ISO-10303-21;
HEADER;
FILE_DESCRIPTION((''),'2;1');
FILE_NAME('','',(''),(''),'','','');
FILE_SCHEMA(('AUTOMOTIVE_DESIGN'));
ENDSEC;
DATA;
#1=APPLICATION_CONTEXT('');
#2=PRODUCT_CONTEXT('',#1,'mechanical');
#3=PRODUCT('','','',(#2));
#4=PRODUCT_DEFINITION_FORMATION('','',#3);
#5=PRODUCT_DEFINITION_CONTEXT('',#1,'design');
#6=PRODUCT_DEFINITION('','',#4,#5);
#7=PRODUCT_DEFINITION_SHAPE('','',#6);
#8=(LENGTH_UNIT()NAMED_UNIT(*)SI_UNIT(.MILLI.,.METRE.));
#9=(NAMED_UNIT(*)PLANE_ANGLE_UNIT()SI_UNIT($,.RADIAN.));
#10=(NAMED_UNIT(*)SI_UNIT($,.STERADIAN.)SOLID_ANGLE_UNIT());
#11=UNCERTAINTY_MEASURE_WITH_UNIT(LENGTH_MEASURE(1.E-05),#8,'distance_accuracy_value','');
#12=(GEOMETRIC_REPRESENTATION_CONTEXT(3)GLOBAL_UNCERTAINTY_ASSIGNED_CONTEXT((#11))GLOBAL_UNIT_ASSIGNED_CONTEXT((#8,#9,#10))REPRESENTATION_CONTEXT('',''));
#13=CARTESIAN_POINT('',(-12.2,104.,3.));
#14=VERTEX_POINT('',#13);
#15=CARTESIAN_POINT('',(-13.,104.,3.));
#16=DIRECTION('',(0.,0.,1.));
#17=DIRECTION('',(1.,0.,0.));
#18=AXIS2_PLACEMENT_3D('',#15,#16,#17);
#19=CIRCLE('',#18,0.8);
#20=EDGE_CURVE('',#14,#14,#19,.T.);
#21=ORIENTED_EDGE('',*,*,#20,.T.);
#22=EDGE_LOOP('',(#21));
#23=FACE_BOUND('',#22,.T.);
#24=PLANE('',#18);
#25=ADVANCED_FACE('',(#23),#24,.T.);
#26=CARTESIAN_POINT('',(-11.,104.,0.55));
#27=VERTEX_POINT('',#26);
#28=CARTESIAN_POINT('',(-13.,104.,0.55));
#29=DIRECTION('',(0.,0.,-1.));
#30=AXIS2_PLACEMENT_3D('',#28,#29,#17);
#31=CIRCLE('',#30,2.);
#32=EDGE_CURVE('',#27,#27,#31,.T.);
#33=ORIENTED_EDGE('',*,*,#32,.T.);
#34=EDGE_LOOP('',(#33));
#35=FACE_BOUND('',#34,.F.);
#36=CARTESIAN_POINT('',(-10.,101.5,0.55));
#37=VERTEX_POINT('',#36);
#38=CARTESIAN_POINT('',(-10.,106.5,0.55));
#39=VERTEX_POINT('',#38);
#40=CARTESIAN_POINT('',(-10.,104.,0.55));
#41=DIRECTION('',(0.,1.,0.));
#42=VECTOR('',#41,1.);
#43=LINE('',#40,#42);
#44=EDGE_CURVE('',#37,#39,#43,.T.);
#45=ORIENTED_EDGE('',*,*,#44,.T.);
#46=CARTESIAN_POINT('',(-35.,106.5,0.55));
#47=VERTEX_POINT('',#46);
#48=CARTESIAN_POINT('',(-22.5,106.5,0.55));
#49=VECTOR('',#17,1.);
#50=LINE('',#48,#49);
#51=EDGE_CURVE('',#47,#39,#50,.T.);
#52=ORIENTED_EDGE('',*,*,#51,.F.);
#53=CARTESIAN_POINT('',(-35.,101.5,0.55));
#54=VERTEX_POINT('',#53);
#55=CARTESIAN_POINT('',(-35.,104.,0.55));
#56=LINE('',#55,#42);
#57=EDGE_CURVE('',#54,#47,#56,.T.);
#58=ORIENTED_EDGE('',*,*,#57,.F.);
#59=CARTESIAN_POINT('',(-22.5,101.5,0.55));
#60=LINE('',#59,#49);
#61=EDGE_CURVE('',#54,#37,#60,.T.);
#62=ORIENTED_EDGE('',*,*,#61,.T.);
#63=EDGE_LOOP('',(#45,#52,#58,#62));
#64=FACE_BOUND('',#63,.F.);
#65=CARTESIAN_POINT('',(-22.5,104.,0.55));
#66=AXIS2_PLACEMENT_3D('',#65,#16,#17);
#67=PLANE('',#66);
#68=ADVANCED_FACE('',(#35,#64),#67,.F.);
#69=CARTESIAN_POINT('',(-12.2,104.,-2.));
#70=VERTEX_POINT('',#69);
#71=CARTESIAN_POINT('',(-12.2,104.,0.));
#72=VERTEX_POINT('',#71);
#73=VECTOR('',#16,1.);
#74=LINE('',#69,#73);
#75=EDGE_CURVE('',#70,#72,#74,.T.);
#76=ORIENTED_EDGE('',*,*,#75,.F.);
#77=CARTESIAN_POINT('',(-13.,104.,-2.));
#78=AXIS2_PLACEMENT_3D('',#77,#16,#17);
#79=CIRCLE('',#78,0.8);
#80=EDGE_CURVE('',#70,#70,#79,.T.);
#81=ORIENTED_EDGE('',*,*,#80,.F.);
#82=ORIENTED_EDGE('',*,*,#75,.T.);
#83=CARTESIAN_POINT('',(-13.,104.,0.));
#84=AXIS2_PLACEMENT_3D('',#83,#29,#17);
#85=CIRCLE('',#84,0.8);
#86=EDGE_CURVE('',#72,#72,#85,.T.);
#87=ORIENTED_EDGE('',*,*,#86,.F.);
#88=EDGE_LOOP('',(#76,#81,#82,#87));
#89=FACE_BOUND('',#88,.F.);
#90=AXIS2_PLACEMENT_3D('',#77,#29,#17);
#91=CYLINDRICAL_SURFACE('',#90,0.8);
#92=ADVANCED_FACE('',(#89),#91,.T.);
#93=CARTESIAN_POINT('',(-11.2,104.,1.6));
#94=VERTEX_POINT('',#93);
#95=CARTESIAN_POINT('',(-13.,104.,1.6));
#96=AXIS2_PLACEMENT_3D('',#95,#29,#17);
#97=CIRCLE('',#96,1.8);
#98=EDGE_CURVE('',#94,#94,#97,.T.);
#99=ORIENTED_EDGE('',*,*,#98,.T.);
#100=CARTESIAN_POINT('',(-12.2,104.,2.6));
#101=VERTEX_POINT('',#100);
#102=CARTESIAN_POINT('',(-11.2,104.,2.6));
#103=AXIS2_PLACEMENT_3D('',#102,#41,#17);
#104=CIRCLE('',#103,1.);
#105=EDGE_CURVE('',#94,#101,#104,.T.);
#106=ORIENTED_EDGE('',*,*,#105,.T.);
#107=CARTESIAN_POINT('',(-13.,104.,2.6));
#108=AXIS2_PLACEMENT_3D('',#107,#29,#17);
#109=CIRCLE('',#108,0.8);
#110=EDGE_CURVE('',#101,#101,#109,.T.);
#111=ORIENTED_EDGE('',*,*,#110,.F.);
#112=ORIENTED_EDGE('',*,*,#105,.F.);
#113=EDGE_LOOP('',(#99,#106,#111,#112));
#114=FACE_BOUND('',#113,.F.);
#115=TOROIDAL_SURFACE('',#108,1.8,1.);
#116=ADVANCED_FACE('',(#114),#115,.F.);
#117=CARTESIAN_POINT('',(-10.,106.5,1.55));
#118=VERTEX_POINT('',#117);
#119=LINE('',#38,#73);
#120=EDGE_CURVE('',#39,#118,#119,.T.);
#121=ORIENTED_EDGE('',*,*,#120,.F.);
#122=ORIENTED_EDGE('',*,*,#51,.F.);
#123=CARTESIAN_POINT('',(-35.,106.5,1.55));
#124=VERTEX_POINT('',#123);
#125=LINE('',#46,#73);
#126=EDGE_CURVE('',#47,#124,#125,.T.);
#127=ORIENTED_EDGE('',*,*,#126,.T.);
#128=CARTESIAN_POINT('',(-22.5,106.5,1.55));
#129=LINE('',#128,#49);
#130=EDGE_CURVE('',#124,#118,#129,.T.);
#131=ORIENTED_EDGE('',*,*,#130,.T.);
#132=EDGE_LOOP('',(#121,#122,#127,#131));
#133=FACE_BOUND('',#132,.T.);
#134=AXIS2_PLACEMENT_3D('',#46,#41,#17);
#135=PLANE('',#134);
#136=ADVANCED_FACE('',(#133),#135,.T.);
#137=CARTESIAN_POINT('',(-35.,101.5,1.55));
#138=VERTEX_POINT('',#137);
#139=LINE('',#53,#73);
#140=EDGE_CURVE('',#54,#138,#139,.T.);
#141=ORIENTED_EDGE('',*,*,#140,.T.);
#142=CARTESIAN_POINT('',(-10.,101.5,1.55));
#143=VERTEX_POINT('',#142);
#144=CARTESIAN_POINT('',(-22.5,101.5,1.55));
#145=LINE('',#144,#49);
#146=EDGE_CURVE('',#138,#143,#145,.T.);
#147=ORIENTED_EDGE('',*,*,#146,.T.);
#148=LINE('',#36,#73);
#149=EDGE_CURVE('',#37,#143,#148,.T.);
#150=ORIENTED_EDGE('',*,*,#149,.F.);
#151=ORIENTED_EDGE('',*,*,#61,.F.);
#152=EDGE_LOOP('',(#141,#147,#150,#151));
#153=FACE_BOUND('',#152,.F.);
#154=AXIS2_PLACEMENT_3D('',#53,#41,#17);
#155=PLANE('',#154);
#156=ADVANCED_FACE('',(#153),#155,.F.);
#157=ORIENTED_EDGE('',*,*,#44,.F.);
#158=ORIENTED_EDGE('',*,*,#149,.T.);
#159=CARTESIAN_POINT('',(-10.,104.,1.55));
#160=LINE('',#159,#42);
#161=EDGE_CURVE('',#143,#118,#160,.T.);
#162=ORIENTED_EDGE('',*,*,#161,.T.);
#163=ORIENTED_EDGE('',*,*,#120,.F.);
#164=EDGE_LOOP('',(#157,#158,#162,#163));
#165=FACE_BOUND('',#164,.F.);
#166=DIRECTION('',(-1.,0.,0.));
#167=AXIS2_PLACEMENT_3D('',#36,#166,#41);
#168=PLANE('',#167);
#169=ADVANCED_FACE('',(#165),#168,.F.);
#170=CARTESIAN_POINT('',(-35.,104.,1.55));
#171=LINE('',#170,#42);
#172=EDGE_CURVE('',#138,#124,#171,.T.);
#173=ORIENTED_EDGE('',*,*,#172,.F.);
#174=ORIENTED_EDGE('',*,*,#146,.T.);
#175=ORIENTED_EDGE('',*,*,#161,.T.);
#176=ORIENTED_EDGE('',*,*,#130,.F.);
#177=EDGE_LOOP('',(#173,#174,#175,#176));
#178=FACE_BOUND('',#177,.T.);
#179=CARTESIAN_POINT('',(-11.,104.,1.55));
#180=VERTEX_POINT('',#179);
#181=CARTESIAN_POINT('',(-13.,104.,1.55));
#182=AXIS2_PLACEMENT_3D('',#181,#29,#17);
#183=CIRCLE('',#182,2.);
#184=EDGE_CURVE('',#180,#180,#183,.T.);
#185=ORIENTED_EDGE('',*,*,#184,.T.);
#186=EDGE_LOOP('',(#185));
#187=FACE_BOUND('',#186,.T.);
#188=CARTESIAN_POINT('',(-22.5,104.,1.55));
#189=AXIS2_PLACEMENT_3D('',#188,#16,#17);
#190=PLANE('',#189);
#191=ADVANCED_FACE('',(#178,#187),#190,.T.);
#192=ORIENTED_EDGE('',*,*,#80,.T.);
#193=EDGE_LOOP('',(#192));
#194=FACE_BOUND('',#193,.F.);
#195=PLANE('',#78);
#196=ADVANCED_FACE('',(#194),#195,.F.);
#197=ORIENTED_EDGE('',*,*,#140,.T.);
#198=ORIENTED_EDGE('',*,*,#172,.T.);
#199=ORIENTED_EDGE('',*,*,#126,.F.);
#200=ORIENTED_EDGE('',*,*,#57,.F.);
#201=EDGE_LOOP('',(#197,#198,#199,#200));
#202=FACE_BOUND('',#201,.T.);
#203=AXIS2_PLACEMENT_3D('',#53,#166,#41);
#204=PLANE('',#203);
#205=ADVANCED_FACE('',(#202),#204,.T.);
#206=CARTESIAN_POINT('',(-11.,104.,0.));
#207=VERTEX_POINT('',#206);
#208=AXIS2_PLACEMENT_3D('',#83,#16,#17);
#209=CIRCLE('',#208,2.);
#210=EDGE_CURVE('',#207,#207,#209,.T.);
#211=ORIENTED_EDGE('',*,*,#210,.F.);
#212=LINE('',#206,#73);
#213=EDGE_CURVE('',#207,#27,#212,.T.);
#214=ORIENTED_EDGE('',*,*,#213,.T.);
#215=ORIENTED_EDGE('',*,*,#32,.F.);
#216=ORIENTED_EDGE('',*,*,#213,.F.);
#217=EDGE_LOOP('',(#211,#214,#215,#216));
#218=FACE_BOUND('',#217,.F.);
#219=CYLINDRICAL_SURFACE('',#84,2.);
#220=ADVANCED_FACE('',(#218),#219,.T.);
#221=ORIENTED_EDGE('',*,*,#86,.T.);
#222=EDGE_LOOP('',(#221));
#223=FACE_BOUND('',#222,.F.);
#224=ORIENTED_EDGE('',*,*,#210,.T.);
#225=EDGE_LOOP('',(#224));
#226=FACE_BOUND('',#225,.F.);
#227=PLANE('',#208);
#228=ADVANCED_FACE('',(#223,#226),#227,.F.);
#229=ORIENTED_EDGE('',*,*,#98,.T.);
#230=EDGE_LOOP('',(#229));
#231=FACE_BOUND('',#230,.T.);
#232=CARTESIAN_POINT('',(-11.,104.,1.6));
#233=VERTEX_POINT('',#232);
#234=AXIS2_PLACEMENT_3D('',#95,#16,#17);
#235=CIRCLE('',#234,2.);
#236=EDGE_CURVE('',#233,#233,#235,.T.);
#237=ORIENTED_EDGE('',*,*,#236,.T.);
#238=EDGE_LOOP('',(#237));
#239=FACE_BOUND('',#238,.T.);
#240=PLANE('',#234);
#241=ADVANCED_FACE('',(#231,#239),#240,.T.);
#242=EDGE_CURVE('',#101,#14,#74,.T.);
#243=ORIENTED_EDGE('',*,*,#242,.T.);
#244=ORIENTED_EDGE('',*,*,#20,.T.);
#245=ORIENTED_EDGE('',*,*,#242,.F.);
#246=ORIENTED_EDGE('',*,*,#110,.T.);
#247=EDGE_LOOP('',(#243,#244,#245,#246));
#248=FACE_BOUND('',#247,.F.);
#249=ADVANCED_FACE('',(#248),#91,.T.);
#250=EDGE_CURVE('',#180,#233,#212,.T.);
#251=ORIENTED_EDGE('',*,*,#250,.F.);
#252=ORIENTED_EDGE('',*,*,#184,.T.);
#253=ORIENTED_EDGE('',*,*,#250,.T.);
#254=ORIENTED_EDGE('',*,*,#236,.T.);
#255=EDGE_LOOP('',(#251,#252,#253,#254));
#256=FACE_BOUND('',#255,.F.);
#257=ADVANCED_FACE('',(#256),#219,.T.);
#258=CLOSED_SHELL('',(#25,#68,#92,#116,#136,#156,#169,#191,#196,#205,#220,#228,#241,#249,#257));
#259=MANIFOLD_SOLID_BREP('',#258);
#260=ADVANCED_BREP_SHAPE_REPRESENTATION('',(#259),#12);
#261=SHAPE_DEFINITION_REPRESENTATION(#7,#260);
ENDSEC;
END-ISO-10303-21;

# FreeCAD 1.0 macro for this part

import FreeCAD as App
import Part
import Sketcher

V = App.Vector


def edges_at(feature, points):
    """Names of the edges that pass closest to the given points."""
    edges = feature.Shape.Edges
    near = lambda p: min(range(len(edges)), key=lambda i: edges[i].distToShape(Part.Vertex(*p))[0])
    return sorted({f"Edge{near(p) + 1}" for p in points})

doc = App.newDocument("Part")
body = doc.addObject("PartDesign::Body", "Body")

# Sketch on XY plane
sketch1 = body.newObject("Sketcher::SketchObject", "Sketch")
sketch1.AttachmentSupport = (doc.getObject("XY_Plane"), [""])
sketch1.MapMode = "FlatFace"
sketch1.AttachmentOffset = App.Placement(V(0, 0, -2), App.Rotation())
sketch1.addGeometry(Part.Circle(V(-8, 104, 0), V(0, 0, 1), 0.8), False)
sketch1.addConstraint(Sketcher.Constraint("Diameter", 0, 1.6))
sketch1.addConstraint(Sketcher.Constraint("DistanceX", 0, 3, -1, 1, 8.0))
sketch1.addConstraint(Sketcher.Constraint("DistanceY", -1, 1, 0, 3, 104.0))
pad1 = body.newObject("PartDesign::Pad", "Pad")
pad1.Profile = sketch1
pad1.Length = 5
body2 = doc.addObject("PartDesign::Body", "Body001")

# Sketch on XY plane
sketch2 = body2.newObject("Sketcher::SketchObject", "Sketch001")
sketch2.AttachmentSupport = (doc.getObject("XY_Plane001"), [""])
sketch2.MapMode = "FlatFace"
sketch2.addGeometry(Part.Circle(V(-8, 104, 0), V(0, 0, 1), 2), False)
sketch2.addConstraint(Sketcher.Constraint("Diameter", 0, 4.0))
sketch2.addConstraint(Sketcher.Constraint("DistanceX", 0, 3, -1, 1, 8.0))
sketch2.addConstraint(Sketcher.Constraint("DistanceY", -1, 1, 0, 3, 104.0))
pad2 = body2.newObject("PartDesign::Pad", "Pad001")
pad2.Profile = sketch2
pad2.Length = 1.6
doc.recompute()

boolean = body2.newObject("PartDesign::Boolean", "Boolean")
boolean.Type = "Fuse"
boolean.addObjects([body])
doc.recompute()

fillet = body2.newObject("PartDesign::Fillet", "Fillet")
fillet.Base = (boolean, edges_at(boolean, [(-8.8, 104, 1.6)]))
fillet.Radius = 1
body3 = doc.addObject("PartDesign::Body", "Body002")

# Sketch on XY plane
sketch3 = body3.newObject("Sketcher::SketchObject", "Sketch002")
sketch3.AttachmentSupport = (doc.getObject("XY_Plane002"), [""])
sketch3.MapMode = "FlatFace"
sketch3.AttachmentOffset = App.Placement(V(0, 0, 0.55), App.Rotation())
sketch3.addGeometry(Part.LineSegment(V(-30, 106, 0), V(-30, 102, 0)), False)
sketch3.addGeometry(Part.LineSegment(V(-30, 102, 0), V(-5, 102, 0)), False)
sketch3.addGeometry(Part.LineSegment(V(-5, 102, 0), V(-5, 106, 0)), False)
sketch3.addGeometry(Part.LineSegment(V(-5, 106, 0), V(-30, 106, 0)), False)
sketch3.addConstraint(Sketcher.Constraint("Coincident", 0, 2, 1, 1))
sketch3.addConstraint(Sketcher.Constraint("Coincident", 1, 2, 2, 1))
sketch3.addConstraint(Sketcher.Constraint("Coincident", 2, 2, 3, 1))
sketch3.addConstraint(Sketcher.Constraint("Coincident", 3, 2, 0, 1))
sketch3.addConstraint(Sketcher.Constraint("Vertical", 0))
sketch3.addConstraint(Sketcher.Constraint("Horizontal", 1))
sketch3.addConstraint(Sketcher.Constraint("Vertical", 2))
sketch3.addConstraint(Sketcher.Constraint("Horizontal", 3))
sketch3.addConstraint(Sketcher.Constraint("DistanceX", 1, 1, 1, 2, 25.0))
sketch3.addConstraint(Sketcher.Constraint("DistanceY", 0, 2, 0, 1, 5.0))
sketch3.addConstraint(Sketcher.Constraint("DistanceX", 0, 2, -1, 1, 30.0))
sketch3.addConstraint(Sketcher.Constraint("DistanceY", -1, 1, 0, 2, 101.5))
pad3 = body3.newObject("PartDesign::Pad", "Pad002")
pad3.Profile = sketch3
pad3.Length = 1
doc.recompute()

boolean2 = body3.newObject("PartDesign::Boolean", "Boolean001")
boolean2.Type = "Fuse"
boolean2.addObjects([body2])
body4 = doc.addObject("PartDesign::Body", "Body003")
doc.recompute()

body3.Placement = App.Placement(V(-5, 0, 0), App.Rotation(V(0, 0, 1), 0))
boolean3 = body4.newObject("PartDesign::Boolean", "Boolean002")
boolean3.Type = "Fuse"
boolean3.addObjects([body3])

doc.recompute()
